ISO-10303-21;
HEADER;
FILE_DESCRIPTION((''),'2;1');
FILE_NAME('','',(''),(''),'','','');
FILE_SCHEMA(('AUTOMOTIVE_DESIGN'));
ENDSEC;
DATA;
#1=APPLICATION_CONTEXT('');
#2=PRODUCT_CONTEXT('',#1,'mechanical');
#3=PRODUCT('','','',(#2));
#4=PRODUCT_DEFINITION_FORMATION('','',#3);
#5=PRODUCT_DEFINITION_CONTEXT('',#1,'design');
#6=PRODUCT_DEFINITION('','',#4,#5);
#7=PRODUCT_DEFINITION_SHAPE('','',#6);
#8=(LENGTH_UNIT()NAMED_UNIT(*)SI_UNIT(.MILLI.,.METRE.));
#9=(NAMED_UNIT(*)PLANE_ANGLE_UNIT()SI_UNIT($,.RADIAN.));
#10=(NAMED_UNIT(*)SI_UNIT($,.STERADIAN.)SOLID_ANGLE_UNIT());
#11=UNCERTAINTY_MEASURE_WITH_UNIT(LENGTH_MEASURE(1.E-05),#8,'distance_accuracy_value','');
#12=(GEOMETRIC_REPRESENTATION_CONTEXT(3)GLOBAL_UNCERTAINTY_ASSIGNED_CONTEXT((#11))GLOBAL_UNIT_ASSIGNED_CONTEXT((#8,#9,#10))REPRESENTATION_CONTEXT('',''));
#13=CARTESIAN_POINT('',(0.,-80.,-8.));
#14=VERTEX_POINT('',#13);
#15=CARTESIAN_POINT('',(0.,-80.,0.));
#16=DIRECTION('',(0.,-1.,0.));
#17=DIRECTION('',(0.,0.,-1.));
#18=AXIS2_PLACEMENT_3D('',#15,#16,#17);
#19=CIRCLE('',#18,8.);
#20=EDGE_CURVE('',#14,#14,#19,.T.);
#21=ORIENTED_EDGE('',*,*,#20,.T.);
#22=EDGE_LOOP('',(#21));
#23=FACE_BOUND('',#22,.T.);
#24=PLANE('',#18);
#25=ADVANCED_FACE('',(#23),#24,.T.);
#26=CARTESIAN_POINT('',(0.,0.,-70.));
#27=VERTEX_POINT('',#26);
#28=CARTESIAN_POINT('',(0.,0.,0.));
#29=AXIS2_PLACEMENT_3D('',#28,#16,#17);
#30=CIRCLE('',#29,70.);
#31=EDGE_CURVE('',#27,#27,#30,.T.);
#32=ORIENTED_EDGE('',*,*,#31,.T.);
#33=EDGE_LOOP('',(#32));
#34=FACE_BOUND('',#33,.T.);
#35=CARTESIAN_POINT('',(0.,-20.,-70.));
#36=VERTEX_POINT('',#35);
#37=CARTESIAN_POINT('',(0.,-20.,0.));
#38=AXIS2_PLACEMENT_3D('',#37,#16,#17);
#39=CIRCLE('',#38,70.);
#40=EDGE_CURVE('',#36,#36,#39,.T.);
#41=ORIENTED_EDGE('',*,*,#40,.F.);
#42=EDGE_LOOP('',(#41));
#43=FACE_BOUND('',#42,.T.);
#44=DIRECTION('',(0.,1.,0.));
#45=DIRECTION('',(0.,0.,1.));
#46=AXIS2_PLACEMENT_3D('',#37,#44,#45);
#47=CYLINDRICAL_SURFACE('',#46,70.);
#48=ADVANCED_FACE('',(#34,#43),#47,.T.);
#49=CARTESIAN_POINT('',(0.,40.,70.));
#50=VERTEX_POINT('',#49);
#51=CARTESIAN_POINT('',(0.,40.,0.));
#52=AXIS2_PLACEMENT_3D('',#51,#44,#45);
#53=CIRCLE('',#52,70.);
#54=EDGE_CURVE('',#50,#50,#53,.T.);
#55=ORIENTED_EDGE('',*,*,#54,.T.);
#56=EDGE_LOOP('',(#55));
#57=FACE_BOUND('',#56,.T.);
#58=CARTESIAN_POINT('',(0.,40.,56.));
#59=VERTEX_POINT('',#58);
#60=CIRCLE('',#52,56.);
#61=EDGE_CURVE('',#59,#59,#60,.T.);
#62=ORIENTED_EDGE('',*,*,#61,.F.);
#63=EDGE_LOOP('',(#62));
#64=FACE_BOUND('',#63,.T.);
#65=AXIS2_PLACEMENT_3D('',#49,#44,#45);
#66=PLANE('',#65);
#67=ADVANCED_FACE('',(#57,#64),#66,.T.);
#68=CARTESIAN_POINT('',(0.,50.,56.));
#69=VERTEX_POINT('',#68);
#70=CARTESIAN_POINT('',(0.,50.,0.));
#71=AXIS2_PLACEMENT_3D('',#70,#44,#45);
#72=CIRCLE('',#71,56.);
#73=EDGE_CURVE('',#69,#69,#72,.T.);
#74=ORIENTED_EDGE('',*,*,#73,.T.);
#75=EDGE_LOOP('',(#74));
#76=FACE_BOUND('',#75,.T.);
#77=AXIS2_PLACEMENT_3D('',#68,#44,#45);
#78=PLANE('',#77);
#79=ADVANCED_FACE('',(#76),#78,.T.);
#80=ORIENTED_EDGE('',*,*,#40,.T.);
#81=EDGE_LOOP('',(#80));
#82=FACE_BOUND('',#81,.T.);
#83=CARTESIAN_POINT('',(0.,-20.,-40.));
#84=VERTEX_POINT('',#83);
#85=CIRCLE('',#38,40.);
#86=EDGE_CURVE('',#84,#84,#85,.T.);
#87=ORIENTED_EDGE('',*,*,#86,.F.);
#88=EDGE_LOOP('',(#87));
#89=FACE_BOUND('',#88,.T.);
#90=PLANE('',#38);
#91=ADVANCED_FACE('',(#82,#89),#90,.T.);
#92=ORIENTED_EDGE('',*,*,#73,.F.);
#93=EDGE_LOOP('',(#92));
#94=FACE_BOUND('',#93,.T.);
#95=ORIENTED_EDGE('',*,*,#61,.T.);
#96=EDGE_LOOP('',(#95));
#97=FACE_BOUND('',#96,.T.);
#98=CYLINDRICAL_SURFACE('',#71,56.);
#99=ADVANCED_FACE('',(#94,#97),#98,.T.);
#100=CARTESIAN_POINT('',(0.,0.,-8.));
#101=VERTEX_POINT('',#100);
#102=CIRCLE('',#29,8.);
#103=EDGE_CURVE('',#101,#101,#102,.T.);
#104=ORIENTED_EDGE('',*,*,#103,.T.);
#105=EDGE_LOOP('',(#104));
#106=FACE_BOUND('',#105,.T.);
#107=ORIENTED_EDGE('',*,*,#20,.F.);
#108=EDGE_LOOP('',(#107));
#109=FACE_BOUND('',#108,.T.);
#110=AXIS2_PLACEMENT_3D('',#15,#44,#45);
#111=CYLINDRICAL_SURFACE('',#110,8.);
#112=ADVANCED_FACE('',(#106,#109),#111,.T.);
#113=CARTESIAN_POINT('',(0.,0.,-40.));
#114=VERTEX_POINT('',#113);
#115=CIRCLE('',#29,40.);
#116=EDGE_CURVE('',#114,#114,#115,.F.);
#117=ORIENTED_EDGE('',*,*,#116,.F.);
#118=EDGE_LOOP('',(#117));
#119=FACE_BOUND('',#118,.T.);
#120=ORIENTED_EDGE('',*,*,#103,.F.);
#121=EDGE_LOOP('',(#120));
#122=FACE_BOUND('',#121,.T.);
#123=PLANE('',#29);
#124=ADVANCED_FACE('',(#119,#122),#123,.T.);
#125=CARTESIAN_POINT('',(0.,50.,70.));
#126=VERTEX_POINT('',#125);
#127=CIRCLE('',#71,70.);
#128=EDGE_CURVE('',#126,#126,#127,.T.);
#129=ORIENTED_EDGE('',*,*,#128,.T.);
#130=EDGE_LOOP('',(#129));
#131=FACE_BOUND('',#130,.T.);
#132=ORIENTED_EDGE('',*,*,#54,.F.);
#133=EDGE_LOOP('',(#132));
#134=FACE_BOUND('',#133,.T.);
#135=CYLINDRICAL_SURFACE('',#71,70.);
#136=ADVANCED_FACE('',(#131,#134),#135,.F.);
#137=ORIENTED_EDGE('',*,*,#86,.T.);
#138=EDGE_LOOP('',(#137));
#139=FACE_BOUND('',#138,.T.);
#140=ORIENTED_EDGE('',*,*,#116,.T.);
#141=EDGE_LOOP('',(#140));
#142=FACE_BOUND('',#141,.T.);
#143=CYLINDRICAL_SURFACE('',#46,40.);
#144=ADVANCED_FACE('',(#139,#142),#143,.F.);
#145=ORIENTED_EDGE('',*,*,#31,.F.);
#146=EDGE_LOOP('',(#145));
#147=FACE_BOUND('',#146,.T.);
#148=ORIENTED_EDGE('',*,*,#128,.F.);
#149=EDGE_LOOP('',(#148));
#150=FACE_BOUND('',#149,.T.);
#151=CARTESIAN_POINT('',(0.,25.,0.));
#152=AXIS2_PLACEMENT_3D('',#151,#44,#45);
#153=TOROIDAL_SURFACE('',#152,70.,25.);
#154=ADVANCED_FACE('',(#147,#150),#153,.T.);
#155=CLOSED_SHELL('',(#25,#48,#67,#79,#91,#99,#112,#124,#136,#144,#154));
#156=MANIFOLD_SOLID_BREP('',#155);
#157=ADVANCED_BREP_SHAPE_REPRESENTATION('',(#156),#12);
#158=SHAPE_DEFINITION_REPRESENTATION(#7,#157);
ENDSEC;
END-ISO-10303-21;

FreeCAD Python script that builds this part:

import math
import FreeCAD as App
import Part
import Sketcher
Q = App.Units.Quantity

doc = App.newDocument("Part")
body = doc.addObject("PartDesign::Body", "Body")

# Sketch on YZ plane
sketch1 = doc.addObject("Sketcher::SketchObject", "Sketch")
body.addObject(sketch1)
sketch1.AttachmentSupport = (doc.YZ_Plane, [""])
sketch1.MapMode = "FlatFace"
sketch1.addGeometry([
    Part.LineSegment(App.Vector(0, 70, 0), App.Vector(0, 0, 0)),  # 0
    Part.LineSegment(App.Vector(0, 0, 0), App.Vector(50, 0, 0)),  # 1
    Part.LineSegment(App.Vector(50, 0, 0), App.Vector(50, 56, 0)),  # 2
    Part.LineSegment(App.Vector(50, 56, 0), App.Vector(40, 56, 0)),  # 3
    Part.LineSegment(App.Vector(40, 56, 0), App.Vector(40, 70, 0)),  # 4
    Part.LineSegment(App.Vector(40, 70, 0), App.Vector(50, 70, 0)),  # 5
    Part.ArcOfCircle(Part.Circle(App.Vector(25, 70, 0), App.Vector(0, 0, 1), 25), math.radians(0), math.radians(180)),  # 6
], False)
sketch1.addConstraint([
    Sketcher.Constraint("Coincident", 0, 2, 1, 1),
    Sketcher.Constraint("Coincident", 1, 2, 2, 1),
    Sketcher.Constraint("Coincident", 2, 2, 3, 1),
    Sketcher.Constraint("Coincident", 3, 2, 4, 1),
    Sketcher.Constraint("Coincident", 4, 2, 5, 1),
    Sketcher.Constraint("Coincident", 5, 2, 6, 1),
    Sketcher.Constraint("Tangent", 6, 2, 0, 1),
    Sketcher.Constraint("Vertical", 0),
    Sketcher.Constraint("Horizontal", 1),
    Sketcher.Constraint("Vertical", 2),
    Sketcher.Constraint("Horizontal", 3),
    Sketcher.Constraint("Vertical", 4),
    Sketcher.Constraint("Horizontal", 5),
    Sketcher.Constraint("Coincident", 0, 2, -1, 1),
    Sketcher.Constraint("Horizontal", 6, 3, 4, 2),
    Sketcher.Constraint("Vertical", 2, 2, 5, 2),
    Sketcher.Constraint("Radius", 6, Q("25 mm")),
    Sketcher.Constraint("DistanceX", 3, 2, 3, 1, Q("10 mm")),
    Sketcher.Constraint("DistanceY", 0, 2, 0, 1, Q("70 mm")),
    Sketcher.Constraint("DistanceY", 2, 1, 2, 2, Q("56 mm")),
])
revolution = doc.addObject("PartDesign::Revolution", "Revolution")
body.addObject(revolution)
revolution.Profile = sketch1
revolution.ReferenceAxis = (sketch1, ["H_Axis"])
revolution.Angle = 360

# Sketch on XZ plane
sketch2 = doc.addObject("Sketcher::SketchObject", "Sketch001")
body.addObject(sketch2)
sketch2.AttachmentSupport = (doc.XZ_Plane, [""])
sketch2.MapMode = "FlatFace"
sketch2.AttachmentOffset = App.Placement(App.Vector(0, 0, 20), App.Rotation())
sketch2.addGeometry([
    Part.Circle(App.Vector(0, 0, 0), App.Vector(0, 0, 1), 70),
    Part.Circle(App.Vector(0, 0, 0), App.Vector(0, 0, 1), 40),
], False)
sketch2.addConstraint([
    Sketcher.Constraint("Coincident", 0, 3, -1, 1),
    Sketcher.Constraint("Coincident", 1, 3, -1, 1),
    Sketcher.Constraint("Diameter", 0, Q("140 mm")),
    Sketcher.Constraint("Diameter", 1, Q("80 mm")),
])
pad1 = doc.addObject("PartDesign::Pad", "Pad")
body.addObject(pad1)
pad1.Profile = sketch2
pad1.Length = 20
pad1.Reversed = True

# Sketch on XZ plane
sketch3 = doc.addObject("Sketcher::SketchObject", "Sketch002")
body.addObject(sketch3)
sketch3.AttachmentSupport = (doc.XZ_Plane, [""])
sketch3.MapMode = "FlatFace"
sketch3.addGeometry(Part.Circle(App.Vector(0, 0, 0), App.Vector(0, 0, 1), 8), False)
sketch3.addConstraint([
    Sketcher.Constraint("Coincident", 0, 3, -1, 1),
    Sketcher.Constraint("Diameter", 0, Q("16 mm")),
])
pad2 = doc.addObject("PartDesign::Pad", "Pad001")
body.addObject(pad2)
pad2.Profile = sketch3
pad2.Length = 80

doc.recompute()
